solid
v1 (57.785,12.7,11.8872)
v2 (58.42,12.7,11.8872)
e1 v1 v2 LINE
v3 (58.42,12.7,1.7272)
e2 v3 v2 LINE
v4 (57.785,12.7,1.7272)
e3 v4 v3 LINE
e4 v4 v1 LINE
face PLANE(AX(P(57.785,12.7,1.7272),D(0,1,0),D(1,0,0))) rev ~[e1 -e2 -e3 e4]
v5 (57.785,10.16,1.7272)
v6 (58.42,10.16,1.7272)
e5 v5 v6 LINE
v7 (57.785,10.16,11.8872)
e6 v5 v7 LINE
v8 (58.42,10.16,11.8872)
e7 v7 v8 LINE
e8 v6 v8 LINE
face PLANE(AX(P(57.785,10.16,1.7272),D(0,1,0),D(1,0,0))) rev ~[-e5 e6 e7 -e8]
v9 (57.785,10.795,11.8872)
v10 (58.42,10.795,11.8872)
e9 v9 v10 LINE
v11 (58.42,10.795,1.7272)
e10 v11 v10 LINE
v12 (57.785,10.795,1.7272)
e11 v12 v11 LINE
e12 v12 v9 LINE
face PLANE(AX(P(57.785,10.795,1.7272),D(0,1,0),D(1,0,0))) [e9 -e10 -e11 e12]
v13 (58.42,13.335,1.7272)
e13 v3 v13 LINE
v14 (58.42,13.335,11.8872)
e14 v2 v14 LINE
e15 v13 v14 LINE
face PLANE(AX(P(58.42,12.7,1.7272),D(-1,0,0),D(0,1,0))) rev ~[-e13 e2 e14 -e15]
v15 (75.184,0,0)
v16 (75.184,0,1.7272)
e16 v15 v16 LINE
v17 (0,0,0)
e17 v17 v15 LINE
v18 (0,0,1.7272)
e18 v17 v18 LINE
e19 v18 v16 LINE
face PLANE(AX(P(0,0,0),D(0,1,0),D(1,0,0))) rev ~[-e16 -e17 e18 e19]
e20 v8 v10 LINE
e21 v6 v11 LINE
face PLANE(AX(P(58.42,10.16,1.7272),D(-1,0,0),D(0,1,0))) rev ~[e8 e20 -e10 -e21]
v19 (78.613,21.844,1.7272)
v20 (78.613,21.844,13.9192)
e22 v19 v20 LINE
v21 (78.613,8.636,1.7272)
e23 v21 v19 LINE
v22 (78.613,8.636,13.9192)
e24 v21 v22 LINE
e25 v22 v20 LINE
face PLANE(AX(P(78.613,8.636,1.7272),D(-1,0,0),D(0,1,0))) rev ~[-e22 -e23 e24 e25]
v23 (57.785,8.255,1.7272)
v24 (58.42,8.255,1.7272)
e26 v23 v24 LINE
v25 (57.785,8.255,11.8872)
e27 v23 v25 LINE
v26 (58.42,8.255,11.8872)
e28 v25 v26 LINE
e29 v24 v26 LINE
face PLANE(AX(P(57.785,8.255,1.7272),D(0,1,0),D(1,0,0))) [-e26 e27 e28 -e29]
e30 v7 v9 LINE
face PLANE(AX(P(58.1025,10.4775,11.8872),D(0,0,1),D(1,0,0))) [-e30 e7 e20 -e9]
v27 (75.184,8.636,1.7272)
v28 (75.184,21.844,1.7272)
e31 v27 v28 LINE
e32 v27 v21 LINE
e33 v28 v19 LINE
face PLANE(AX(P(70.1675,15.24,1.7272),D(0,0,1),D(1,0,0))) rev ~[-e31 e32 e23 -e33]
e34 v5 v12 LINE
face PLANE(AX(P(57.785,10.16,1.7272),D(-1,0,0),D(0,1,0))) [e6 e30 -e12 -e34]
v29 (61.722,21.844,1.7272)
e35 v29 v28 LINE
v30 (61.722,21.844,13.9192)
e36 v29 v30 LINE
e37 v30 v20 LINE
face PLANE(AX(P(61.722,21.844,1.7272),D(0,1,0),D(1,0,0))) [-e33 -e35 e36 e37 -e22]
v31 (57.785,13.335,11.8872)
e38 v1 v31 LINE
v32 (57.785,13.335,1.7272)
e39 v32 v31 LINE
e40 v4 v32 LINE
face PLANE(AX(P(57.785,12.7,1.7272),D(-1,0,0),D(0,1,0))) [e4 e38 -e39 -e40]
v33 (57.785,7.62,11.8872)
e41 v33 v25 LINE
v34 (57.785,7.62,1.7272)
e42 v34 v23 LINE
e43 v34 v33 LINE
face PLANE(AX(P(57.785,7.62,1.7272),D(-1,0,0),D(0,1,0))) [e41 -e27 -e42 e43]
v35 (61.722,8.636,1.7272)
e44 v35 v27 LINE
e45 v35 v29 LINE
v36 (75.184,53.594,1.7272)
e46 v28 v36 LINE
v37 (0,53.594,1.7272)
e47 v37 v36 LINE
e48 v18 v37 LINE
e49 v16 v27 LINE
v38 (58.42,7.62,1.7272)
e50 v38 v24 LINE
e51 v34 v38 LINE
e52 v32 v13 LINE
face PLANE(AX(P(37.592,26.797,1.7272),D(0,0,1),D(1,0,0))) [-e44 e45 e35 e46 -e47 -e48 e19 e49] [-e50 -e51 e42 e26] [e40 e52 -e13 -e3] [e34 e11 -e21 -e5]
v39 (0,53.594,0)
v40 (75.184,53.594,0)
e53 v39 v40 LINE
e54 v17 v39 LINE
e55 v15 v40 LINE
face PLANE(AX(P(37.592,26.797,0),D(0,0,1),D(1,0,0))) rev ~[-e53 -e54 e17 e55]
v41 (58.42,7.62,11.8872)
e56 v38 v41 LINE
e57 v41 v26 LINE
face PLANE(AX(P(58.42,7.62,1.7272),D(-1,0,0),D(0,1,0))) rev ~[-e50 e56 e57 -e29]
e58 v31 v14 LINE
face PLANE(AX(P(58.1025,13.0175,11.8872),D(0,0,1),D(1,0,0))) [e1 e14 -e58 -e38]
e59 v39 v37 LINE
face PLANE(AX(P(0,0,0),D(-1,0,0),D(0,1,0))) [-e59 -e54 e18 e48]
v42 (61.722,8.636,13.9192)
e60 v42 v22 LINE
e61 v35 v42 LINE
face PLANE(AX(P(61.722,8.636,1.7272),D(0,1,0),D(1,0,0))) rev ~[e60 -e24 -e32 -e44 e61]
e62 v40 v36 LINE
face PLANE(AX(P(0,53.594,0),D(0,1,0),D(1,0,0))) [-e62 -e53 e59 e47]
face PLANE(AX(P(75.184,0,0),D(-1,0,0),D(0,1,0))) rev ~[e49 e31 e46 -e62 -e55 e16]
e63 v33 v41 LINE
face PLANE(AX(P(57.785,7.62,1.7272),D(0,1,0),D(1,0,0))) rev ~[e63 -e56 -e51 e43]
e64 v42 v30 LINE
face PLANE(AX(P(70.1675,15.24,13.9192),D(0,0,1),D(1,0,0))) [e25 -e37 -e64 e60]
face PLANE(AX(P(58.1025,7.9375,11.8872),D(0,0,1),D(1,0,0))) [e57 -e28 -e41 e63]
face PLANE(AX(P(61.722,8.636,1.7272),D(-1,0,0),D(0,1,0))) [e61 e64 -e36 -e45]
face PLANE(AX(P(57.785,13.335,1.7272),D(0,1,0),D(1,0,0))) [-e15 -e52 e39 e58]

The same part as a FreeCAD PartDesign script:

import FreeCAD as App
import Part
import Sketcher
Q = App.Units.Quantity

doc = App.newDocument("Part")
params = doc.addObject("Spreadsheet::Sheet", "Params")
for row, (alias, value) in enumerate([
    ("sketch1_width", "2.96 in"),
    ("sketch1_height", "2.11 in"),
    ("pad1_length", "0.068 in"),
    ("sketch2_height", "0.52 in"),
    ("sketch2_width", "0.665 in"),
    ("pad2_length", "0.48 in"),
    ("sketch3_width", "0.025 in"),
    ("pad3_length", "0.4 in"),
], start=1):
    params.set(f"A{row}", alias)
    params.set(f"B{row}", "=" + value)
    params.setAlias(f"B{row}", alias)

body = doc.addObject("PartDesign::Body", "Body")

sketch1 = doc.addObject("Sketcher::SketchObject", "Sketch")
body.addObject(sketch1)
sketch1.AttachmentSupport = (doc.XY_Plane, [""])
sketch1.MapMode = "FlatFace"
sketch1.addGeometry(Part.LineSegment(App.Vector(0, 54, 0), App.Vector(0, 0, 0)), False)
sketch1.addGeometry(Part.LineSegment(App.Vector(0, 0, 0), App.Vector(75, 0, 0)), False)
sketch1.addGeometry(Part.LineSegment(App.Vector(75, 0, 0), App.Vector(75, 54, 0)), False)
sketch1.addGeometry(Part.LineSegment(App.Vector(75, 54, 0), App.Vector(0, 54, 0)), False)
sketch1.addConstraint(Sketcher.Constraint("Coincident", 0, 2, 1, 1))
sketch1.addConstraint(Sketcher.Constraint("Coincident", 1, 2, 2, 1))
sketch1.addConstraint(Sketcher.Constraint("Coincident", 2, 2, 3, 1))
sketch1.addConstraint(Sketcher.Constraint("Coincident", 3, 2, 0, 1))
sketch1.addConstraint(Sketcher.Constraint("Vertical", 0))
sketch1.addConstraint(Sketcher.Constraint("Horizontal", 1))
sketch1.addConstraint(Sketcher.Constraint("Vertical", 2))
sketch1.addConstraint(Sketcher.Constraint("Horizontal", 3))
sketch1.addConstraint(Sketcher.Constraint("Coincident", 0, 2, -1, 1))
sketch1.addConstraint(Sketcher.Constraint("DistanceX", 1, 1, 1, 2, Q("2.96 in")))
sketch1.addConstraint(Sketcher.Constraint("DistanceY", 0, 2, 0, 1, Q("2.11 in")))
sketch1.setExpression("Constraints[9]", "Params.sketch1_width")
sketch1.setExpression("Constraints[10]", "Params.sketch1_height")
pad1 = doc.addObject("PartDesign::Pad", "Pad")
body.addObject(pad1)
pad1.Profile = sketch1
pad1.setExpression("Length", "Params.pad1_length")

sketch2 = doc.addObject("Sketcher::SketchObject", "Sketch001")
body.addObject(sketch2)
sketch2.AttachmentSupport = (doc.XY_Plane, [""])
sketch2.MapMode = "FlatFace"
sketch2.AttachmentOffset = App.Placement(App.Vector(0, 0, 0.068 * 25.4), App.Rotation())
sketch2.addGeometry(Part.LineSegment(App.Vector(62, 22, 0), App.Vector(62, 9, 0)), False)
sketch2.addGeometry(Part.LineSegment(App.Vector(62, 9, 0), App.Vector(79, 9, 0)), False)
sketch2.addGeometry(Part.LineSegment(App.Vector(79, 9, 0), App.Vector(79, 22, 0)), False)
sketch2.addGeometry(Part.LineSegment(App.Vector(79, 22, 0), App.Vector(62, 22, 0)), False)
sketch2.addConstraint(Sketcher.Constraint("Coincident", 0, 2, 1, 1))
sketch2.addConstraint(Sketcher.Constraint("Coincident", 1, 2, 2, 1))
sketch2.addConstraint(Sketcher.Constraint("Coincident", 2, 2, 3, 1))
sketch2.addConstraint(Sketcher.Constraint("Coincident", 3, 2, 0, 1))
sketch2.addConstraint(Sketcher.Constraint("Vertical", 0))
sketch2.addConstraint(Sketcher.Constraint("Horizontal", 1))
sketch2.addConstraint(Sketcher.Constraint("Vertical", 2))
sketch2.addConstraint(Sketcher.Constraint("Horizontal", 3))
sketch2.addConstraint(Sketcher.Constraint("DistanceY", 0, 2, 0, 1, Q("0.52 in")))
sketch2.addConstraint(Sketcher.Constraint("DistanceX", 1, 1, 1, 2, Q("0.665 in")))
sketch2.addConstraint(Sketcher.Constraint("DistanceX", -1, 1, 0, 2, Q("2.43 in")))
sketch2.addConstraint(Sketcher.Constraint("DistanceY", -1, 1, 0, 2, Q("0.34 in")))
sketch2.setExpression("Constraints[8]", "Params.sketch2_height")
sketch2.setExpression("Constraints[9]", "Params.sketch2_width")
pad2 = doc.addObject("PartDesign::Pad", "Pad001")
body.addObject(pad2)
pad2.Profile = sketch2
pad2.setExpression("Length", "Params.pad2_length")

sketch3 = doc.addObject("Sketcher::SketchObject", "Sketch002")
body.addObject(sketch3)
sketch3.AttachmentSupport = (doc.XY_Plane, [""])
sketch3.MapMode = "FlatFace"
sketch3.AttachmentOffset = App.Placement(App.Vector(0, 0, 0.068 * 25.4), App.Rotation())
sketch3.addGeometry(Part.LineSegment(App.Vector(57.8, 8.3, 0), App.Vector(57.8, 7.6, 0)), False)
sketch3.addGeometry(Part.LineSegment(App.Vector(57.8, 7.6, 0), App.Vector(58.4, 7.6, 0)), False)
sketch3.addGeometry(Part.LineSegment(App.Vector(58.4, 7.6, 0), App.Vector(58.4, 8.3, 0)), False)
sketch3.addGeometry(Part.LineSegment(App.Vector(58.4, 8.3, 0), App.Vector(57.8, 8.3, 0)), False)
sketch3.addGeometry(Part.LineSegment(App.Vector(57.8, 10.8, 0), App.Vector(57.8, 10.2, 0)), False)
sketch3.addGeometry(Part.LineSegment(App.Vector(57.8, 10.2, 0), App.Vector(58.4, 10.2, 0)), False)
sketch3.addGeometry(Part.LineSegment(App.Vector(58.4, 10.2, 0), App.Vector(58.4, 10.8, 0)), False)
sketch3.addGeometry(Part.LineSegment(App.Vector(58.4, 10.8, 0), App.Vector(57.8, 10.8, 0)), False)
sketch3.addGeometry(Part.LineSegment(App.Vector(57.8, 13.3, 0), App.Vector(57.8, 12.7, 0)), False)
sketch3.addGeometry(Part.LineSegment(App.Vector(57.8, 12.7, 0), App.Vector(58.4, 12.7, 0)), False)
sketch3.addGeometry(Part.LineSegment(App.Vector(58.4, 12.7, 0), App.Vector(58.4, 13.3, 0)), False)
sketch3.addGeometry(Part.LineSegment(App.Vector(58.4, 13.3, 0), App.Vector(57.8, 13.3, 0)), False)
sketch3.addConstraint(Sketcher.Constraint("Coincident", 0, 2, 1, 1))
sketch3.addConstraint(Sketcher.Constraint("Coincident", 1, 2, 2, 1))
sketch3.addConstraint(Sketcher.Constraint("Coincident", 2, 2, 3, 1))
sketch3.addConstraint(Sketcher.Constraint("Coincident", 3, 2, 0, 1))
sketch3.addConstraint(Sketcher.Constraint("Coincident", 4, 2, 5, 1))
sketch3.addConstraint(Sketcher.Constraint("Coincident", 5, 2, 6, 1))
sketch3.addConstraint(Sketcher.Constraint("Coincident", 6, 2, 7, 1))
sketch3.addConstraint(Sketcher.Constraint("Coincident", 7, 2, 4, 1))
sketch3.addConstraint(Sketcher.Constraint("Coincident", 8, 2, 9, 1))
sketch3.addConstraint(Sketcher.Constraint("Coincident", 9, 2, 10, 1))
sketch3.addConstraint(Sketcher.Constraint("Coincident", 10, 2, 11, 1))
sketch3.addConstraint(Sketcher.Constraint("Coincident", 11, 2, 8, 1))
sketch3.addConstraint(Sketcher.Constraint("Vertical", 0))
sketch3.addConstraint(Sketcher.Constraint("Horizontal", 1))
sketch3.addConstraint(Sketcher.Constraint("Vertical", 2))
sketch3.addConstraint(Sketcher.Constraint("Horizontal", 3))
sketch3.addConstraint(Sketcher.Constraint("Vertical", 4))
sketch3.addConstraint(Sketcher.Constraint("Horizontal", 5))
sketch3.addConstraint(Sketcher.Constraint("Vertical", 6))
sketch3.addConstraint(Sketcher.Constraint("Horizontal", 7))
sketch3.addConstraint(Sketcher.Constraint("Vertical", 8))
sketch3.addConstraint(Sketcher.Constraint("Horizontal", 9))
sketch3.addConstraint(Sketcher.Constraint("Vertical", 10))
sketch3.addConstraint(Sketcher.Constraint("Horizontal", 11))
sketch3.addConstraint(Sketcher.Constraint("Vertical", 3, 2, 4, 2))
sketch3.addConstraint(Sketcher.Constraint("Vertical", 2, 2, 5, 2))
sketch3.addConstraint(Sketcher.Constraint("Vertical", 7, 2, 8, 2))
sketch3.addConstraint(Sketcher.Constraint("Vertical", 6, 2, 9, 2))
sketch3.addConstraint(Sketcher.Constraint("Equal", 11, 0))
sketch3.addConstraint(Sketcher.Constraint("Equal", 2, 4))
sketch3.addConstraint(Sketcher.Constraint("Equal", 6, 8))
sketch3.addConstraint(Sketcher.Constraint("DistanceY", -1, 1, 0, 2, Q("0.3 in")))
sketch3.addConstraint(Sketcher.Constraint("DistanceX", -1, 1, 1, 2, Q("2.3 in")))
sketch3.addConstraint(Sketcher.Constraint("DistanceY", -1, 1, 4, 2, Q("0.4 in")))
sketch3.addConstraint(Sketcher.Constraint("DistanceY", -1, 1, 8, 2, Q("0.5 in")))
sketch3.addConstraint(Sketcher.Constraint("DistanceX", 1, 1, 1, 2, Q("0.025 in")))
sketch3.setExpression("Constraints[35]", "Params.sketch3_width")
pad3 = doc.addObject("PartDesign::Pad", "Pad002")
body.addObject(pad3)
pad3.Profile = sketch3
pad3.setExpression("Length", "Params.pad3_length")

doc.recompute()
